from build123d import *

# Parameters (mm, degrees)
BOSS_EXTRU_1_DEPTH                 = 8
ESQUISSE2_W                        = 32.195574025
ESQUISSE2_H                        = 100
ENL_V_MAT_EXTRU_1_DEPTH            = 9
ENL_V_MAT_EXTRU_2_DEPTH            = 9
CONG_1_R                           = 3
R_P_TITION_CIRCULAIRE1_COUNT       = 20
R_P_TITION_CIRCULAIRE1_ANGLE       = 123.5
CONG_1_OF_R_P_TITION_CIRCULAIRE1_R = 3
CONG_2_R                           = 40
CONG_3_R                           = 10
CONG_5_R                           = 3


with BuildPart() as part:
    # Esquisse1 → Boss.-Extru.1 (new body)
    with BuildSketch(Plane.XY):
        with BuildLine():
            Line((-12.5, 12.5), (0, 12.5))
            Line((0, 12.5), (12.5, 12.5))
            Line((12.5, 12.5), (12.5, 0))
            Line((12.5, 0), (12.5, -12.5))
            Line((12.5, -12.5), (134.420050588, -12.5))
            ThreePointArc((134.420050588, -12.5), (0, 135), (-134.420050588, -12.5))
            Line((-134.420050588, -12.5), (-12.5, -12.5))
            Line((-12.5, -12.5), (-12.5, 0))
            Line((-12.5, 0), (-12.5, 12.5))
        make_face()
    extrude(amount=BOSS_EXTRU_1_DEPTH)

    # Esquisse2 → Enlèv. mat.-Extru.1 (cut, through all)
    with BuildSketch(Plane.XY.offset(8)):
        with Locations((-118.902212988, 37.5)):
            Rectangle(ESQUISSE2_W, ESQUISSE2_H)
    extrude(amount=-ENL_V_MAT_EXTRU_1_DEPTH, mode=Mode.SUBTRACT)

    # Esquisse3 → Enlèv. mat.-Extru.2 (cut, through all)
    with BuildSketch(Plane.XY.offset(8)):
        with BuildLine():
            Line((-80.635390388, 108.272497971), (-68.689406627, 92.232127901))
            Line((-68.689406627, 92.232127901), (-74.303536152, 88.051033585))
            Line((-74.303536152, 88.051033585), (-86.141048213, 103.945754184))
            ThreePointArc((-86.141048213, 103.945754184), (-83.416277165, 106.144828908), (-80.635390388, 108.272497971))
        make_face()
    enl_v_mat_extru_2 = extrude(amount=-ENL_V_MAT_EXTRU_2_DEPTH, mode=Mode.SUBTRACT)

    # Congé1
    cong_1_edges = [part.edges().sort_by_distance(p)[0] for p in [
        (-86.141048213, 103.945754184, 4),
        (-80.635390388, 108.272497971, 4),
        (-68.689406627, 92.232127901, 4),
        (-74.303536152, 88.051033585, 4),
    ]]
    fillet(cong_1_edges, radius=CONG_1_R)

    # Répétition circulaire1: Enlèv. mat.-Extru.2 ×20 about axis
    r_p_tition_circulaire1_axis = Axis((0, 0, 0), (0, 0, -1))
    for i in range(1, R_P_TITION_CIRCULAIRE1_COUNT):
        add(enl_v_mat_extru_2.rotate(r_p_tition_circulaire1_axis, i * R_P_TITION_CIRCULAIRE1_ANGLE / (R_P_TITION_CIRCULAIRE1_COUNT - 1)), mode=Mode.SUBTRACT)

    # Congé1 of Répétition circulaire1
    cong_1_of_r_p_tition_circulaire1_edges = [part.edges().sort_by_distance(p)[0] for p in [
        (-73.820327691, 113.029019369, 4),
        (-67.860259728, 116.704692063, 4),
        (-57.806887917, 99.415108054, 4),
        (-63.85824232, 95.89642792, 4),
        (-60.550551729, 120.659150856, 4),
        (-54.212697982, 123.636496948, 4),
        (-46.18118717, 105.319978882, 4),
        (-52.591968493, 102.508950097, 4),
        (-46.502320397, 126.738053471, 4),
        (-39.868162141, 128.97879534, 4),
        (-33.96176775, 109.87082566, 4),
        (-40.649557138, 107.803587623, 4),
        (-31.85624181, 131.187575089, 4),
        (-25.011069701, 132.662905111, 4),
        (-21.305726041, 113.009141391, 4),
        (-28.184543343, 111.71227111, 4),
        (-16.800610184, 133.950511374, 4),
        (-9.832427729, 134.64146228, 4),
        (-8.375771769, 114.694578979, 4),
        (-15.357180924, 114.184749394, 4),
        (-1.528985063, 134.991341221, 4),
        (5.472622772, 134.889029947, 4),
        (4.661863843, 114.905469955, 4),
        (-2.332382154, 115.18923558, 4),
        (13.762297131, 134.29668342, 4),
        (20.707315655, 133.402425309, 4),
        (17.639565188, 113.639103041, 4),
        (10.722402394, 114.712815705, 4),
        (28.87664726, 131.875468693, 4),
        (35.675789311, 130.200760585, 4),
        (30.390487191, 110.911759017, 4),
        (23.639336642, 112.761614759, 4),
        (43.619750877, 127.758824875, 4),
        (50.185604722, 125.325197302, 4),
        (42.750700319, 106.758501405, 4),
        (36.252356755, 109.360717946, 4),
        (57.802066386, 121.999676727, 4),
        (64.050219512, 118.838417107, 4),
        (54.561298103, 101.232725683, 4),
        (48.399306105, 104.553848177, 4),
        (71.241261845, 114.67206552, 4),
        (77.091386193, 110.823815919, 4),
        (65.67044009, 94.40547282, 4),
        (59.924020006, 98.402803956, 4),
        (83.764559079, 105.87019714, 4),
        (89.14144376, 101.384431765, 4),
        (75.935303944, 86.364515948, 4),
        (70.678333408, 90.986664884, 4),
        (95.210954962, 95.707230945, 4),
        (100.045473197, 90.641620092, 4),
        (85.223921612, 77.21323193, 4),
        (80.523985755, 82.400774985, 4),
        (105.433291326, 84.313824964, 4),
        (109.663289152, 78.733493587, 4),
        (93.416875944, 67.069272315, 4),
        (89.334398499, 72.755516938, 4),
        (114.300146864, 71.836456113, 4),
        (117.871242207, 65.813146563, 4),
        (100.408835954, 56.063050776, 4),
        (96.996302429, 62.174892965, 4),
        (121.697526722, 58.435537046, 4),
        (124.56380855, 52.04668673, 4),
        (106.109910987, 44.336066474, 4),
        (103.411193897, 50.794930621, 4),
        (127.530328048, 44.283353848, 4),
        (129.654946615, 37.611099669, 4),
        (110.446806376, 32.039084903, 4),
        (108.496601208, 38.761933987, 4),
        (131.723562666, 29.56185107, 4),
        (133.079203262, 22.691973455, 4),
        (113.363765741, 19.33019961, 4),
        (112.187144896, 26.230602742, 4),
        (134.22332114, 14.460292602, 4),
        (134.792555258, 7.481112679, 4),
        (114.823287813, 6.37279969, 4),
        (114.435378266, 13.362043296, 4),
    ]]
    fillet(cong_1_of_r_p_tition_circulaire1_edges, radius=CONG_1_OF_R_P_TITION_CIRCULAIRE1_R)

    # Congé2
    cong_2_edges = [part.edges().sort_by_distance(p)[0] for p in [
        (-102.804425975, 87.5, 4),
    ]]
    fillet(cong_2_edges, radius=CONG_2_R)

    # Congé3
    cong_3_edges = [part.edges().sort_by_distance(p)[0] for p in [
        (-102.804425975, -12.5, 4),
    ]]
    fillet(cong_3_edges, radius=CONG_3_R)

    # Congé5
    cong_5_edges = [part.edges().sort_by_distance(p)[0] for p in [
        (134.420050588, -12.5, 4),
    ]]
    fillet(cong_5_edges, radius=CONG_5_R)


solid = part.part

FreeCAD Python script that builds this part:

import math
import FreeCAD as App
import Part
import Sketcher
from FreeCAD import Vector
Q = App.Units.Quantity


def edges_at(feature, points):
    """Names of the edges that pass closest to the given points."""
    edges = feature.Shape.Edges
    near = lambda p: min(range(len(edges)), key=lambda i: edges[i].distToShape(Part.Vertex(*p))[0])
    return sorted({f"Edge{near(p) + 1}" for p in points})


def add_polygon(sketch, points):
    """Adds a closed chain of lines whose ends are joined by coincident constraints."""
    first, n = sketch.GeometryCount, len(points)
    for a, b in zip(points, points[1:] + points[:1]):
        sketch.addGeometry(Part.LineSegment(App.Vector(*a, 0), App.Vector(*b, 0)), False)
    for i in range(n):
        sketch.addConstraint(Sketcher.Constraint("Coincident", first + i, 2, first + (i + 1) % n, 1))

doc = App.newDocument("Part")
body = doc.addObject("PartDesign::Body", "Body")

# Sketch on XY plane
sketch1 = doc.addObject("Sketcher::SketchObject", "Sketch")
body.addObject(sketch1)
sketch1.AttachmentSupport = (doc.XY_Plane, [""])
sketch1.MapMode = "FlatFace"
sketch1.addGeometry([
    Part.LineSegment(Vector(-12, 12, 0), Vector(12, 12, 0)),  # 0
    Part.LineSegment(Vector(12, 12, 0), Vector(12, -12, 0)),  # 1
    Part.LineSegment(Vector(12, -12, 0), Vector(134, -12, 0)),  # 2
    Part.ArcOfCircle(Part.Circle(Vector(0, 0, 0), Vector(0, 0, 1), 135), math.radians(-5), math.radians(185)),  # 3
    Part.LineSegment(Vector(-134, -12, 0), Vector(-12, -12, 0)),  # 4
    Part.LineSegment(Vector(-12, -12, 0), Vector(-12, 12, 0)),  # 5
], False)
sketch1.addConstraint([
    Sketcher.Constraint("Coincident", 0, 2, 1, 1),
    Sketcher.Constraint("Coincident", 1, 2, 2, 1),
    Sketcher.Constraint("Coincident", 2, 2, 3, 1),
    Sketcher.Constraint("Coincident", 3, 2, 4, 1),
    Sketcher.Constraint("Coincident", 4, 2, 5, 1),
    Sketcher.Constraint("Coincident", 5, 2, 0, 1),
    Sketcher.Constraint("Horizontal", 0),
    Sketcher.Constraint("Vertical", 1),
    Sketcher.Constraint("Horizontal", 2),
    Sketcher.Constraint("Horizontal", 4),
    Sketcher.Constraint("Vertical", 5),
    Sketcher.Constraint("Coincident", 3, 3, -1, 1),
    Sketcher.Constraint("Symmetric", 0, 2, 4, 2, -1, 1),
    Sketcher.Constraint("Horizontal", 2, 2, 3, 2),
    Sketcher.Constraint("Equal", 0, 1),
    Sketcher.Constraint("Radius", 3, Q("135 mm")),
    Sketcher.Constraint("DistanceX", 0, 1, 0, 2, Q("25 mm")),
])
pad1 = doc.addObject("PartDesign::Pad", "Pad")
body.addObject(pad1)
pad1.Profile = sketch1
pad1.Length = 8

# Sketch on XY plane
sketch2 = doc.addObject("Sketcher::SketchObject", "Sketch001")
body.addObject(sketch2)
sketch2.AttachmentSupport = (doc.XY_Plane, [""])
sketch2.MapMode = "FlatFace"
sketch2.AttachmentOffset = App.Placement(Vector(0, 0, 8), App.Rotation())
add_polygon(sketch2, [(-135, 88), (-135, -12), (-103, -12), (-103, 88)])  # lines 0-3
sketch2.addConstraint([
    Sketcher.Constraint("Vertical", 0),
    Sketcher.Constraint("Horizontal", 1),
    Sketcher.Constraint("Vertical", 2),
    Sketcher.Constraint("Horizontal", 3),
    Sketcher.Constraint("DistanceY", 0, 2, 0, 1, Q("100 mm")),
    Sketcher.Constraint("DistanceX", 0, 2, -1, 1, Q("135 mm")),
    Sketcher.Constraint("DistanceY", 0, 2, -1, 1, Q("12.5 mm")),
    Sketcher.Constraint("DistanceX", 1, 1, 1, 2, Q("32.195574 mm")),
])
pocket1 = doc.addObject("PartDesign::Pocket", "Pocket")
body.addObject(pocket1)
pocket1.Profile = sketch2
pocket1.Type = "ThroughAll"

# Sketch on XY plane
sketch3 = doc.addObject("Sketcher::SketchObject", "Sketch002")
body.addObject(sketch3)
sketch3.AttachmentSupport = (doc.XY_Plane, [""])
sketch3.MapMode = "FlatFace"
sketch3.AttachmentOffset = App.Placement(Vector(0, 0, 8), App.Rotation())
sketch3.addGeometry([
    Part.LineSegment(Vector(-69, 92, 0), Vector(-81, 108, 0)),
    Part.ArcOfCircle(Part.Circle(Vector(0, 0, 0), Vector(0, 0, 1), 135), math.radians(126.68), math.radians(129.65)),
    Part.LineSegment(Vector(-86, 104, 0), Vector(-74, 88, 0)),
    Part.LineSegment(Vector(-74, 88, 0), Vector(-69, 92, 0)),
], False)
sketch3.addConstraint([
    Sketcher.Constraint("Coincident", 0, 2, 1, 1),
    Sketcher.Constraint("Coincident", 1, 2, 2, 1),
    Sketcher.Constraint("Coincident", 2, 2, 3, 1),
    Sketcher.Constraint("Coincident", 3, 2, 0, 1),
    Sketcher.Constraint("Coincident", 1, 3, -1, 1),
    Sketcher.Constraint("Parallel", 0, 2),
    Sketcher.Constraint("Perpendicular", 2, 3),
    Sketcher.Constraint("Radius", 1, Q("135 mm")),
    Sketcher.Constraint("Distance", 0, Q("20 mm")),
    Sketcher.Constraint("Distance", 3, Q("7 mm")),
    Sketcher.Constraint("DistanceY", 1, 3, 0, 2, Q("108.272498 mm")),
    Sketcher.Constraint("DistanceX", 2, 2, 3, 2, Q("5.61413 mm")),
])
pocket2 = doc.addObject("PartDesign::Pocket", "Pocket001")
body.addObject(pocket2)
pocket2.Profile = sketch3
pocket2.Type = "ThroughAll"
doc.recompute()

fillet = doc.addObject("PartDesign::Fillet", "Fillet")
body.addObject(fillet)
fillet.Base = (pocket2, edges_at(pocket2, [
    (-86.141, 103.946, 4),
    (-80.635, 108.272, 4),
    (-68.689, 92.232, 4),
    (-74.304, 88.051, 4),
]))
fillet.Radius = 3
doc.recompute()

polarpattern = doc.addObject("PartDesign::PolarPattern", "PolarPattern")
body.addObject(polarpattern)
polarpattern.Originals = [pocket2]
polarpattern.Axis = (doc.Z_Axis, [""])
polarpattern.Angle = 123.5
polarpattern.Occurrences = 20
polarpattern.Reversed = True
body.Tip = polarpattern
doc.recompute()

fillet2 = doc.addObject("PartDesign::Fillet", "Fillet001")
body.addObject(fillet2)
fillet2.Base = (polarpattern, edges_at(polarpattern, [
    (-73.82, 113.029, 4),
    (-67.86, 116.705, 4),
    (-57.807, 99.415, 4),
    (-63.858, 95.896, 4),
    (-60.551, 120.659, 4),
    (-54.213, 123.636, 4),
    (-46.181, 105.32, 4),
    (-52.592, 102.509, 4),
    (-46.502, 126.738, 4),
    (-39.868, 128.979, 4),
    (-33.962, 109.871, 4),
    (-40.65, 107.804, 4),
    (-31.856, 131.188, 4),
    (-25.011, 132.663, 4),
    (-21.306, 113.009, 4),
    (-28.185, 111.712, 4),
    (-16.801, 133.951, 4),
    (-9.832, 134.641, 4),
    (-8.376, 114.695, 4),
    (-15.357, 114.185, 4),
    (-1.529, 134.991, 4),
    (5.473, 134.889, 4),
    (4.662, 114.905, 4),
    (-2.332, 115.189, 4),
    (13.762, 134.297, 4),
    (20.707, 133.402, 4),
    (17.64, 113.639, 4),
    (10.722, 114.713, 4),
    (28.877, 131.875, 4),
    (35.676, 130.201, 4),
    (30.39, 110.912, 4),
    (23.639, 112.762, 4),
    (43.62, 127.759, 4),
    (50.186, 125.325, 4),
    (42.751, 106.759, 4),
    (36.252, 109.361, 4),
    (57.802, 122, 4),
    (64.05, 118.838, 4),
    (54.561, 101.233, 4),
    (48.399, 104.554, 4),
    (71.241, 114.672, 4),
    (77.091, 110.824, 4),
    (65.67, 94.405, 4),
    (59.924, 98.403, 4),
    (83.765, 105.87, 4),
    (89.141, 101.384, 4),
    (75.935, 86.365, 4),
    (70.678, 90.987, 4),
    (95.211, 95.707, 4),
    (100.045, 90.642, 4),
    (85.224, 77.213, 4),
    (80.524, 82.401, 4),
    (105.433, 84.314, 4),
    (109.663, 78.733, 4),
    (93.417, 67.069, 4),
    (89.334, 72.756, 4),
    (114.3, 71.836, 4),
    (117.871, 65.813, 4),
    (100.409, 56.063, 4),
    (96.996, 62.175, 4),
    (121.698, 58.436, 4),
    (124.564, 52.047, 4),
    (106.11, 44.336, 4),
    (103.411, 50.795, 4),
    (127.53, 44.283, 4),
    (129.655, 37.611, 4),
    (110.447, 32.039, 4),
    (108.497, 38.762, 4),
    (131.724, 29.562, 4),
    (133.079, 22.692, 4),
    (113.364, 19.33, 4),
    (112.187, 26.231, 4),
    (134.223, 14.46, 4),
    (134.793, 7.481, 4),
    (114.823, 6.373, 4),
    (114.435, 13.362, 4),
]))
fillet2.Radius = 3
doc.recompute()

fillet3 = doc.addObject("PartDesign::Fillet", "Fillet002")
body.addObject(fillet3)
fillet3.Base = (fillet2, edges_at(fillet2, [(-102.804, 87.5, 4)]))
fillet3.Radius = 40
doc.recompute()

fillet4 = doc.addObject("PartDesign::Fillet", "Fillet003")
body.addObject(fillet4)
fillet4.Base = (fillet3, edges_at(fillet3, [(-102.804, -12.5, 4)]))
fillet4.Radius = 10
doc.recompute()

fillet5 = doc.addObject("PartDesign::Fillet", "Fillet004")
body.addObject(fillet5)
fillet5.Base = (fillet4, edges_at(fillet4, [(134.42, -12.5, 4)]))
fillet5.Radius = 3

doc.recompute()
